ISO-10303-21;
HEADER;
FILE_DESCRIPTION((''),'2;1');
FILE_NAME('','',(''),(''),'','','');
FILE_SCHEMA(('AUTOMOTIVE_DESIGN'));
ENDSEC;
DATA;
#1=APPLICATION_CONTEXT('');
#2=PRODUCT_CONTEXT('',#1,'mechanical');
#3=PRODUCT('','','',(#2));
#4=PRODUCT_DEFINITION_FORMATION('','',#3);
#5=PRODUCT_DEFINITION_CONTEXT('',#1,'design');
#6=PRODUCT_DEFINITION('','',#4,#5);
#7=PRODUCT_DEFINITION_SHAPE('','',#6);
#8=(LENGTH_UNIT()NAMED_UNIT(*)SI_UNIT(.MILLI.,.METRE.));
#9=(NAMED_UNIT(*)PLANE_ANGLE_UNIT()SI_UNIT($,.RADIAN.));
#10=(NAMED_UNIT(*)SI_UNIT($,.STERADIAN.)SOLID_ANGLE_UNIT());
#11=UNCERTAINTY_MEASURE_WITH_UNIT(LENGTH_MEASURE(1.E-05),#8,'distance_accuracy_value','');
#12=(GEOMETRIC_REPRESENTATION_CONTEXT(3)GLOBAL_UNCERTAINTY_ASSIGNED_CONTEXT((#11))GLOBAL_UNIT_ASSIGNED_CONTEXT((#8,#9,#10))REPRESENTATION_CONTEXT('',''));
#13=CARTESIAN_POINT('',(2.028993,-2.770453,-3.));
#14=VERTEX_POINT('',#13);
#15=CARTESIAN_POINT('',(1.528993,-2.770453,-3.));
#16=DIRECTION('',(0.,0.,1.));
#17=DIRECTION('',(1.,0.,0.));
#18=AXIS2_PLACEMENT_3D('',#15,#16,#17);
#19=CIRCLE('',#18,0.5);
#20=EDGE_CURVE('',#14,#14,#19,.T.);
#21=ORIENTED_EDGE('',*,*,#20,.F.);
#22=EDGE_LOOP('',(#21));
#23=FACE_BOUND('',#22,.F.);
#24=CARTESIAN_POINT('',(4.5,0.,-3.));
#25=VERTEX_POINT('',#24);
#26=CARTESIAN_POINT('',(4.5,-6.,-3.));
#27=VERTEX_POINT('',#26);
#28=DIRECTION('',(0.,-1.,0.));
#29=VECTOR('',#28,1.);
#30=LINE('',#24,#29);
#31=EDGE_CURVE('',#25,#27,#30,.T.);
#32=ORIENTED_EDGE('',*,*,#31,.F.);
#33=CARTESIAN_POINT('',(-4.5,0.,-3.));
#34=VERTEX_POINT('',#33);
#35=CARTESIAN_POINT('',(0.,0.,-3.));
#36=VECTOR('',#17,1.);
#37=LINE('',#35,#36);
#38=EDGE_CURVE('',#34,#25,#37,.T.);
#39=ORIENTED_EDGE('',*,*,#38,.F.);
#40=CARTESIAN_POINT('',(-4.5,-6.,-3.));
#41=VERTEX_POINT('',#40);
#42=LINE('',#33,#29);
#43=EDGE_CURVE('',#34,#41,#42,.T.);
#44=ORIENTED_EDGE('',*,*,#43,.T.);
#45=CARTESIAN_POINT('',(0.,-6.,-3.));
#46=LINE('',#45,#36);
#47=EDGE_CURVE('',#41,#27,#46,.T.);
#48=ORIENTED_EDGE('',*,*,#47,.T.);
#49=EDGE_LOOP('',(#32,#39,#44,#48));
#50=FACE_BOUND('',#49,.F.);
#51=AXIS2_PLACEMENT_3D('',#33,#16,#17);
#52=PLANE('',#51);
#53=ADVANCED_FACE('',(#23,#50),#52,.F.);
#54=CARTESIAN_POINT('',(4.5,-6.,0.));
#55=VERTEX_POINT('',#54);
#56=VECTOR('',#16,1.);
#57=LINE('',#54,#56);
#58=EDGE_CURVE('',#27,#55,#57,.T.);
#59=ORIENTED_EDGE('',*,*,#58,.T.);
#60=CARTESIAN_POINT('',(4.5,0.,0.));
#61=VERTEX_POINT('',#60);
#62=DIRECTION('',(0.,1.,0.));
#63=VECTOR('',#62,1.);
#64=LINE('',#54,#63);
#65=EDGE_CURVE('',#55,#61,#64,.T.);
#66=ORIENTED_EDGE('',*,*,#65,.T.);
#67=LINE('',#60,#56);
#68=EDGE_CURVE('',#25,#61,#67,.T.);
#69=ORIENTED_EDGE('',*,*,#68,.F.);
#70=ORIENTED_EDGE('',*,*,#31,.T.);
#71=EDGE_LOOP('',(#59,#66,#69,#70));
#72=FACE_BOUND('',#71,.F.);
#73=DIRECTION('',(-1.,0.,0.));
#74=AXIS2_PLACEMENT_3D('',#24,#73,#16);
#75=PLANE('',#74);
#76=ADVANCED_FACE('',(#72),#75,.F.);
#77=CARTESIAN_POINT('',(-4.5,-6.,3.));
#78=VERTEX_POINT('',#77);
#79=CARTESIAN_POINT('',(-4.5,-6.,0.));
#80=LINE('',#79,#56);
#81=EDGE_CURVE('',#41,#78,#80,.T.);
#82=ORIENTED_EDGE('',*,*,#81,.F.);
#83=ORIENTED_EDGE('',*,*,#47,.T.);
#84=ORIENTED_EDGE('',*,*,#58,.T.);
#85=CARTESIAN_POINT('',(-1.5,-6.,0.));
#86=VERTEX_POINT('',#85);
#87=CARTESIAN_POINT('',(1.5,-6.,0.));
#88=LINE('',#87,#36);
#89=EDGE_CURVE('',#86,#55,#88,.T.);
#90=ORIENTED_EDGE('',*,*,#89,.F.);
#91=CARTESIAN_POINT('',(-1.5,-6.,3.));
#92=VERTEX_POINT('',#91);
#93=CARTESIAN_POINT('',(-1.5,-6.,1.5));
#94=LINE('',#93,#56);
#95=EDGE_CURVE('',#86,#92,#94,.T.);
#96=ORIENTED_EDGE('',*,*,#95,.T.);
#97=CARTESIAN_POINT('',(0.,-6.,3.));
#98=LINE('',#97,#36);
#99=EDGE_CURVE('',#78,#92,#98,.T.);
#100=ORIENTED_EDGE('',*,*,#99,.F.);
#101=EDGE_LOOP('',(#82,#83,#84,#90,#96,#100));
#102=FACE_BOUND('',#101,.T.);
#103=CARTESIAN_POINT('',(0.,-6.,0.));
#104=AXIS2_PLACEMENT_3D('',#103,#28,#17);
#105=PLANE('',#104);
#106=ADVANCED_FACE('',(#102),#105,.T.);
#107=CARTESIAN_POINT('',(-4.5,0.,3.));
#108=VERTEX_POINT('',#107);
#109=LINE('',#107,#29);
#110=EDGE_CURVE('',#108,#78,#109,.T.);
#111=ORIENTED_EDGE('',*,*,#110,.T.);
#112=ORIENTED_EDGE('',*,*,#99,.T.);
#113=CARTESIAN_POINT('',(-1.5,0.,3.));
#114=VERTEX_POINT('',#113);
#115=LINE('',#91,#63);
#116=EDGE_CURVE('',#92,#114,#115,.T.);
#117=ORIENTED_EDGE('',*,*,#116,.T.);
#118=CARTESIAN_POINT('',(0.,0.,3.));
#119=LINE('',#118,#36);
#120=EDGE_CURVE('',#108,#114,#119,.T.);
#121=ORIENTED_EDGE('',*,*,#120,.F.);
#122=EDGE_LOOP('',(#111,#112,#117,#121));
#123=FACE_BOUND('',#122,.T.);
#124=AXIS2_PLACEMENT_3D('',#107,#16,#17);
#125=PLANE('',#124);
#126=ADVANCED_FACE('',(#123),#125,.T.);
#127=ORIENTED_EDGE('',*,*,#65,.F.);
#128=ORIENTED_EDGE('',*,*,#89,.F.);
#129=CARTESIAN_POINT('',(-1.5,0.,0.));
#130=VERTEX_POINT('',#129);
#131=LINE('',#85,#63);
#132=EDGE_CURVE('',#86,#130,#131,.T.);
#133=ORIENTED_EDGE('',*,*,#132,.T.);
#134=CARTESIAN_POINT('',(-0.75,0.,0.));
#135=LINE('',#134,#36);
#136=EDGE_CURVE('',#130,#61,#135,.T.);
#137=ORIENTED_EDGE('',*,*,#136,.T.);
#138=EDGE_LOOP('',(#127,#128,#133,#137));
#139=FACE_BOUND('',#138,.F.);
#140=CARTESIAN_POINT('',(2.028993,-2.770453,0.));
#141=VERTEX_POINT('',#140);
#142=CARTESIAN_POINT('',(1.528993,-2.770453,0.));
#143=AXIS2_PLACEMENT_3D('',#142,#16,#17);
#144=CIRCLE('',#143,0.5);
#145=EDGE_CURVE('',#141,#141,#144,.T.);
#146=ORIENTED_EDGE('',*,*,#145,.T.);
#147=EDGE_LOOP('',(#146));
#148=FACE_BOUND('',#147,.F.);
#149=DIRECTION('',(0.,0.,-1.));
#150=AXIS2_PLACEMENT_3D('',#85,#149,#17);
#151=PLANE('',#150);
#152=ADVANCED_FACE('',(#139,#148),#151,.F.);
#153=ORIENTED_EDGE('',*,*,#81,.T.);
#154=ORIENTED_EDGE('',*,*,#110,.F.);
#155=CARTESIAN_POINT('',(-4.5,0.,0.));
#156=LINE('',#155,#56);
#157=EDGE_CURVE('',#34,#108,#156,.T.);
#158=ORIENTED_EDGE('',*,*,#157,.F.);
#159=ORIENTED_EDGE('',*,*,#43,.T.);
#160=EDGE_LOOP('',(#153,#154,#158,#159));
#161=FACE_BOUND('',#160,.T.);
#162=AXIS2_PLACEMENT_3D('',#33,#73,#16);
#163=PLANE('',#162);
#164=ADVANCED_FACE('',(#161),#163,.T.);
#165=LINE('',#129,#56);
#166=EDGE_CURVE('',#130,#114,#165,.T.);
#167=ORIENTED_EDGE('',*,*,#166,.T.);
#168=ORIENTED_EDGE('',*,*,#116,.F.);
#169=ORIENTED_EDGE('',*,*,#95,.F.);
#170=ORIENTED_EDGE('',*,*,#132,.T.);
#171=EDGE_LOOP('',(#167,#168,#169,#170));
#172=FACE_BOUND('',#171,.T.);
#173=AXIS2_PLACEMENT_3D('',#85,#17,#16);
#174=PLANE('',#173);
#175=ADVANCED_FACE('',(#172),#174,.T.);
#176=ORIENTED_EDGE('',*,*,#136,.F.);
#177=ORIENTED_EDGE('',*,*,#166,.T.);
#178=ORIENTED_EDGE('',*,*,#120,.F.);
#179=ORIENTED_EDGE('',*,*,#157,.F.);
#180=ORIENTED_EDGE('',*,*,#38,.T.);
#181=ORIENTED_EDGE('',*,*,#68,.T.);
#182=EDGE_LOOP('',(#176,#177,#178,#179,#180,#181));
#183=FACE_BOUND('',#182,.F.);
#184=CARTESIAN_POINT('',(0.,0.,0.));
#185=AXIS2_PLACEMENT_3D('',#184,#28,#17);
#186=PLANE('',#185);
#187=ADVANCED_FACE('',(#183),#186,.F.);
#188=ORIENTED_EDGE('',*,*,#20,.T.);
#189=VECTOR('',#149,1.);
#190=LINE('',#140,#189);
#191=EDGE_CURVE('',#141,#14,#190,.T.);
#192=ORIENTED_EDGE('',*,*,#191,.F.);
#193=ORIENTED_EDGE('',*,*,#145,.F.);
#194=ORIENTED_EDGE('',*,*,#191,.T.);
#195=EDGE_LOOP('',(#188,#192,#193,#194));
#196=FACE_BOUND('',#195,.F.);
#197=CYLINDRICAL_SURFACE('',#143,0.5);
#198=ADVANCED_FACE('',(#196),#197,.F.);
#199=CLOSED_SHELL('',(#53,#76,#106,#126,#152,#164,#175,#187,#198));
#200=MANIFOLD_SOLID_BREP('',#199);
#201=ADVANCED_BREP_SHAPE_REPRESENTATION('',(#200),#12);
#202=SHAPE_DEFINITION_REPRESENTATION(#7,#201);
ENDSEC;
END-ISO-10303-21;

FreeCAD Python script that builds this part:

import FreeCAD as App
import Part
import Sketcher
from FreeCAD import Vector
Q = App.Units.Quantity

doc = App.newDocument("Part")
body = doc.addObject("PartDesign::Body", "Body")

sketch1 = body.newObject("Sketcher::SketchObject", "Sketch")
sketch1.AttachmentSupport = (doc.getObject("XZ_Plane"), [""])
sketch1.MapMode = "FlatFace"
sketch1.addGeometry([
    Part.LineSegment(Vector(-4, 3, 0), Vector(-4, -3, 0)),
    Part.LineSegment(Vector(-4, -3, 0), Vector(4, -3, 0)),
    Part.LineSegment(Vector(4, -3, 0), Vector(4, 3, 0)),
    Part.LineSegment(Vector(4, 3, 0), Vector(-4, 3, 0)),
], False)
sketch1.addConstraint([
    Sketcher.Constraint("Coincident", 0, 2, 1, 1),
    Sketcher.Constraint("Coincident", 1, 2, 2, 1),
    Sketcher.Constraint("Coincident", 2, 2, 3, 1),
    Sketcher.Constraint("Coincident", 3, 2, 0, 1),
    Sketcher.Constraint("Vertical", 0),
    Sketcher.Constraint("Horizontal", 1),
    Sketcher.Constraint("Vertical", 2),
    Sketcher.Constraint("Horizontal", 3),
    Sketcher.Constraint("Symmetric", 0, 2, 2, 2, -1, 1),
    Sketcher.Constraint("DistanceX", 1, 1, 1, 2, Q("9 mm")),
    Sketcher.Constraint("DistanceY", 0, 2, 0, 1, Q("6 mm")),
])
pad1 = body.newObject("PartDesign::Pad", "Pad")
pad1.Profile = sketch1
pad1.Length = 6

sketch2 = body.newObject("Sketcher::SketchObject", "Sketch001")
sketch2.AttachmentSupport = (doc.getObject("XZ_Plane"), [""])
sketch2.MapMode = "FlatFace"
sketch2.AttachmentOffset = App.Placement(Vector(0, 0, 6), App.Rotation())
sketch2.addGeometry([
    Part.LineSegment(Vector(-1.5, 3, 0), Vector(-1.5, 0, 0)),
    Part.LineSegment(Vector(-1.5, 0, 0), Vector(4.5, 0, 0)),
    Part.LineSegment(Vector(4.5, 0, 0), Vector(4.5, 3, 0)),
    Part.LineSegment(Vector(4.5, 3, 0), Vector(-1.5, 3, 0)),
], False)
sketch2.addConstraint([
    Sketcher.Constraint("Coincident", 0, 2, 1, 1),
    Sketcher.Constraint("Coincident", 1, 2, 2, 1),
    Sketcher.Constraint("Coincident", 2, 2, 3, 1),
    Sketcher.Constraint("Coincident", 3, 2, 0, 1),
    Sketcher.Constraint("Vertical", 0),
    Sketcher.Constraint("Horizontal", 1),
    Sketcher.Constraint("Vertical", 2),
    Sketcher.Constraint("Horizontal", 3),
    Sketcher.Constraint("PointOnObject", 0, 2, -1),
    Sketcher.Constraint("DistanceX", 1, 1, 1, 2, Q("6 mm")),
    Sketcher.Constraint("DistanceY", 0, 2, 0, 1, Q("3 mm")),
    Sketcher.Constraint("DistanceX", 0, 2, -1, 1, Q("1.5 mm")),
])
pocket1 = body.newObject("PartDesign::Pocket", "Pocket")
pocket1.Profile = sketch2
pocket1.Type = "ThroughAll"

sketch3 = body.newObject("Sketcher::SketchObject", "Sketch002")
sketch3.AttachmentSupport = (doc.getObject("XY_Plane"), [""])
sketch3.MapMode = "FlatFace"
sketch3.addGeometry(Part.Circle(Vector(1.5, -2.8, 0), Vector(0, 0, 1), 0.5), False)
sketch3.addConstraint([
    Sketcher.Constraint("Diameter", 0, Q("1 mm")),
    Sketcher.Constraint("DistanceX", -1, 1, 0, 3, Q("1.528993 mm")),
    Sketcher.Constraint("DistanceY", 0, 3, -1, 1, Q("2.770453 mm")),
])
pocket2 = body.newObject("PartDesign::Pocket", "Pocket001")
pocket2.Profile = sketch3
pocket2.Type = "ThroughAll"

doc.recompute()
